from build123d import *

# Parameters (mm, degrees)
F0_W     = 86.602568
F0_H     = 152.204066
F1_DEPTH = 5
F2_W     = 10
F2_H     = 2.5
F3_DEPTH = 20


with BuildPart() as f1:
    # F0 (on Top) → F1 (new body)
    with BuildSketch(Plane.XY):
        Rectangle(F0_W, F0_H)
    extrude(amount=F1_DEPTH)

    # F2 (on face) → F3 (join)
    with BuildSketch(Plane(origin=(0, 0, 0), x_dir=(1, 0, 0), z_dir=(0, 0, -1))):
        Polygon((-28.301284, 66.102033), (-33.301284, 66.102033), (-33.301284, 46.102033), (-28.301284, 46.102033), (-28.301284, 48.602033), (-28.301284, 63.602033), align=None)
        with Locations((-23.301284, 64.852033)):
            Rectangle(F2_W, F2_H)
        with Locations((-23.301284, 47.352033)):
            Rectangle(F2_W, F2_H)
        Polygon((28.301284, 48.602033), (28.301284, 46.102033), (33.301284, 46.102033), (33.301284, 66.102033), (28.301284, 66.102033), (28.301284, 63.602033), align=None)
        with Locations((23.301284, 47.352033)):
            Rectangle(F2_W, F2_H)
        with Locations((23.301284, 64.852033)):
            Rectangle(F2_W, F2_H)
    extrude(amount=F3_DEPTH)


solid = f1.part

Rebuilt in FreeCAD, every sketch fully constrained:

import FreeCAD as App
import Part
import Sketcher

V = App.Vector
Q = App.Units.Quantity

doc = App.newDocument("Part")
params = doc.addObject("Spreadsheet::Sheet", "Params")
for row, (alias, value) in enumerate([
    ("pad1_length", "5 mm"),
    ("sketch2_width", "15 mm"),
    ("sketch2_width2", "10 mm"),
    ("sketch2_height", "20 mm"),
    ("pad2_length", "20 mm"),
], start=1):
    params.set(f"A{row}", alias)
    params.set(f"B{row}", "=" + value)
    params.setAlias(f"B{row}", alias)

body = doc.addObject("PartDesign::Body", "Body")

# Sketch on XY plane
sketch1 = body.newObject("Sketcher::SketchObject", "Sketch")
sketch1.AttachmentSupport = (doc.getObject("XY_Plane"), [""])
sketch1.MapMode = "FlatFace"
sketch1.addGeometry([
    Part.LineSegment(V(-43, 76, 0), V(-43, -76, 0)),
    Part.LineSegment(V(-43, -76, 0), V(43, -76, 0)),
    Part.LineSegment(V(43, -76, 0), V(43, 76, 0)),
    Part.LineSegment(V(43, 76, 0), V(-43, 76, 0)),
], False)
sketch1.addConstraint([
    Sketcher.Constraint("Coincident", 0, 2, 1, 1),
    Sketcher.Constraint("Coincident", 1, 2, 2, 1),
    Sketcher.Constraint("Coincident", 2, 2, 3, 1),
    Sketcher.Constraint("Coincident", 3, 2, 0, 1),
    Sketcher.Constraint("Vertical", 0),
    Sketcher.Constraint("Horizontal", 1),
    Sketcher.Constraint("Vertical", 2),
    Sketcher.Constraint("Horizontal", 3),
    Sketcher.Constraint("Symmetric", 0, 2, 2, 2, -1, 1),
    Sketcher.Constraint("DistanceX", 1, 1, 1, 2, Q("86.602568 mm")),
    Sketcher.Constraint("DistanceY", 0, 2, 0, 1, Q("152.204066 mm")),
])
pad1 = body.newObject("PartDesign::Pad", "Pad")
pad1.Profile = sketch1
pad1.setExpression("Length", "Params.pad1_length")

# Sketch on XY plane
sketch2 = body.newObject("Sketcher::SketchObject", "Sketch001")
sketch2.AttachmentSupport = (doc.getObject("XY_Plane"), [""])
sketch2.MapMode = "FlatFace"
sketch2.addGeometry([
    Part.LineSegment(V(-33.3, -66.1, 0), V(-33.3, -46.1, 0)),  # 0
    Part.LineSegment(V(-33.3, -46.1, 0), V(-18.3, -46.1, 0)),  # 1
    Part.LineSegment(V(-18.3, -46.1, 0), V(-18.3, -48.6, 0)),  # 2
    Part.LineSegment(V(-18.3, -48.6, 0), V(-28.3, -48.6, 0)),  # 3
    Part.LineSegment(V(-28.3, -48.6, 0), V(-28.3, -63.6, 0)),  # 4
    Part.LineSegment(V(-28.3, -63.6, 0), V(-18.3, -63.6, 0)),  # 5
    Part.LineSegment(V(-18.3, -63.6, 0), V(-18.3, -66.1, 0)),  # 6
    Part.LineSegment(V(-18.3, -66.1, 0), V(-33.3, -66.1, 0)),  # 7
    Part.LineSegment(V(33.3, -46.1, 0), V(33.3, -66.1, 0)),  # 8
    Part.LineSegment(V(33.3, -66.1, 0), V(18.3, -66.1, 0)),  # 9
    Part.LineSegment(V(18.3, -66.1, 0), V(18.3, -63.6, 0)),  # 10
    Part.LineSegment(V(18.3, -63.6, 0), V(28.3, -63.6, 0)),  # 11
    Part.LineSegment(V(28.3, -63.6, 0), V(28.3, -48.6, 0)),  # 12
    Part.LineSegment(V(28.3, -48.6, 0), V(18.3, -48.6, 0)),  # 13
    Part.LineSegment(V(18.3, -48.6, 0), V(18.3, -46.1, 0)),  # 14
    Part.LineSegment(V(18.3, -46.1, 0), V(33.3, -46.1, 0)),  # 15
], False)
sketch2.addConstraint([
    Sketcher.Constraint("Coincident", 0, 2, 1, 1),
    Sketcher.Constraint("Coincident", 1, 2, 2, 1),
    Sketcher.Constraint("Coincident", 2, 2, 3, 1),
    Sketcher.Constraint("Coincident", 3, 2, 4, 1),
    Sketcher.Constraint("Coincident", 4, 2, 5, 1),
    Sketcher.Constraint("Coincident", 5, 2, 6, 1),
    Sketcher.Constraint("Coincident", 6, 2, 7, 1),
    Sketcher.Constraint("Coincident", 7, 2, 0, 1),
    Sketcher.Constraint("Coincident", 8, 2, 9, 1),
    Sketcher.Constraint("Coincident", 9, 2, 10, 1),
    Sketcher.Constraint("Coincident", 10, 2, 11, 1),
    Sketcher.Constraint("Coincident", 11, 2, 12, 1),
    Sketcher.Constraint("Coincident", 12, 2, 13, 1),
    Sketcher.Constraint("Coincident", 13, 2, 14, 1),
    Sketcher.Constraint("Coincident", 14, 2, 15, 1),
    Sketcher.Constraint("Coincident", 15, 2, 8, 1),
    Sketcher.Constraint("Vertical", 0),
    Sketcher.Constraint("Horizontal", 1),
    Sketcher.Constraint("Vertical", 2),
    Sketcher.Constraint("Horizontal", 3),
    Sketcher.Constraint("Vertical", 4),
    Sketcher.Constraint("Horizontal", 5),
    Sketcher.Constraint("Vertical", 6),
    Sketcher.Constraint("Horizontal", 7),
    Sketcher.Constraint("Vertical", 8),
    Sketcher.Constraint("Horizontal", 9),
    Sketcher.Constraint("Vertical", 10),
    Sketcher.Constraint("Horizontal", 11),
    Sketcher.Constraint("Vertical", 12),
    Sketcher.Constraint("Horizontal", 13),
    Sketcher.Constraint("Vertical", 14),
    Sketcher.Constraint("Horizontal", 15),
    Sketcher.Constraint("Symmetric", 7, 2, 8, 2, -2),
    Sketcher.Constraint("Symmetric", 5, 2, 10, 2, -2),
    Sketcher.Constraint("Symmetric", 3, 2, 12, 2, -2),
    Sketcher.Constraint("Symmetric", 1, 2, 14, 2, -2),
    Sketcher.Constraint("Vertical", 2, 2, 5, 2),
    Sketcher.Constraint("Equal", 15, 4),
    Sketcher.Constraint("Equal", 2, 6),
    Sketcher.Constraint("DistanceX", 1, 1, 1, 2, Q("15 mm")),
    Sketcher.Constraint("DistanceX", 3, 2, 3, 1, Q("10 mm")),
    Sketcher.Constraint("DistanceY", 0, 1, 0, 2, Q("20 mm")),
    Sketcher.Constraint("DistanceX", 6, 2, 8, 2, Q("51.602568 mm")),
    Sketcher.Constraint("DistanceY", 0, 2, -1, 1, Q("46.102033 mm")),
])
sketch2.setExpression("Constraints[39]", "Params.sketch2_width")
sketch2.setExpression("Constraints[40]", "Params.sketch2_width2")
sketch2.setExpression("Constraints[41]", "Params.sketch2_height")
pad2 = body.newObject("PartDesign::Pad", "Pad001")
pad2.Profile = sketch2
pad2.setExpression("Length", "Params.pad2_length")
pad2.Reversed = True

doc.recompute()
